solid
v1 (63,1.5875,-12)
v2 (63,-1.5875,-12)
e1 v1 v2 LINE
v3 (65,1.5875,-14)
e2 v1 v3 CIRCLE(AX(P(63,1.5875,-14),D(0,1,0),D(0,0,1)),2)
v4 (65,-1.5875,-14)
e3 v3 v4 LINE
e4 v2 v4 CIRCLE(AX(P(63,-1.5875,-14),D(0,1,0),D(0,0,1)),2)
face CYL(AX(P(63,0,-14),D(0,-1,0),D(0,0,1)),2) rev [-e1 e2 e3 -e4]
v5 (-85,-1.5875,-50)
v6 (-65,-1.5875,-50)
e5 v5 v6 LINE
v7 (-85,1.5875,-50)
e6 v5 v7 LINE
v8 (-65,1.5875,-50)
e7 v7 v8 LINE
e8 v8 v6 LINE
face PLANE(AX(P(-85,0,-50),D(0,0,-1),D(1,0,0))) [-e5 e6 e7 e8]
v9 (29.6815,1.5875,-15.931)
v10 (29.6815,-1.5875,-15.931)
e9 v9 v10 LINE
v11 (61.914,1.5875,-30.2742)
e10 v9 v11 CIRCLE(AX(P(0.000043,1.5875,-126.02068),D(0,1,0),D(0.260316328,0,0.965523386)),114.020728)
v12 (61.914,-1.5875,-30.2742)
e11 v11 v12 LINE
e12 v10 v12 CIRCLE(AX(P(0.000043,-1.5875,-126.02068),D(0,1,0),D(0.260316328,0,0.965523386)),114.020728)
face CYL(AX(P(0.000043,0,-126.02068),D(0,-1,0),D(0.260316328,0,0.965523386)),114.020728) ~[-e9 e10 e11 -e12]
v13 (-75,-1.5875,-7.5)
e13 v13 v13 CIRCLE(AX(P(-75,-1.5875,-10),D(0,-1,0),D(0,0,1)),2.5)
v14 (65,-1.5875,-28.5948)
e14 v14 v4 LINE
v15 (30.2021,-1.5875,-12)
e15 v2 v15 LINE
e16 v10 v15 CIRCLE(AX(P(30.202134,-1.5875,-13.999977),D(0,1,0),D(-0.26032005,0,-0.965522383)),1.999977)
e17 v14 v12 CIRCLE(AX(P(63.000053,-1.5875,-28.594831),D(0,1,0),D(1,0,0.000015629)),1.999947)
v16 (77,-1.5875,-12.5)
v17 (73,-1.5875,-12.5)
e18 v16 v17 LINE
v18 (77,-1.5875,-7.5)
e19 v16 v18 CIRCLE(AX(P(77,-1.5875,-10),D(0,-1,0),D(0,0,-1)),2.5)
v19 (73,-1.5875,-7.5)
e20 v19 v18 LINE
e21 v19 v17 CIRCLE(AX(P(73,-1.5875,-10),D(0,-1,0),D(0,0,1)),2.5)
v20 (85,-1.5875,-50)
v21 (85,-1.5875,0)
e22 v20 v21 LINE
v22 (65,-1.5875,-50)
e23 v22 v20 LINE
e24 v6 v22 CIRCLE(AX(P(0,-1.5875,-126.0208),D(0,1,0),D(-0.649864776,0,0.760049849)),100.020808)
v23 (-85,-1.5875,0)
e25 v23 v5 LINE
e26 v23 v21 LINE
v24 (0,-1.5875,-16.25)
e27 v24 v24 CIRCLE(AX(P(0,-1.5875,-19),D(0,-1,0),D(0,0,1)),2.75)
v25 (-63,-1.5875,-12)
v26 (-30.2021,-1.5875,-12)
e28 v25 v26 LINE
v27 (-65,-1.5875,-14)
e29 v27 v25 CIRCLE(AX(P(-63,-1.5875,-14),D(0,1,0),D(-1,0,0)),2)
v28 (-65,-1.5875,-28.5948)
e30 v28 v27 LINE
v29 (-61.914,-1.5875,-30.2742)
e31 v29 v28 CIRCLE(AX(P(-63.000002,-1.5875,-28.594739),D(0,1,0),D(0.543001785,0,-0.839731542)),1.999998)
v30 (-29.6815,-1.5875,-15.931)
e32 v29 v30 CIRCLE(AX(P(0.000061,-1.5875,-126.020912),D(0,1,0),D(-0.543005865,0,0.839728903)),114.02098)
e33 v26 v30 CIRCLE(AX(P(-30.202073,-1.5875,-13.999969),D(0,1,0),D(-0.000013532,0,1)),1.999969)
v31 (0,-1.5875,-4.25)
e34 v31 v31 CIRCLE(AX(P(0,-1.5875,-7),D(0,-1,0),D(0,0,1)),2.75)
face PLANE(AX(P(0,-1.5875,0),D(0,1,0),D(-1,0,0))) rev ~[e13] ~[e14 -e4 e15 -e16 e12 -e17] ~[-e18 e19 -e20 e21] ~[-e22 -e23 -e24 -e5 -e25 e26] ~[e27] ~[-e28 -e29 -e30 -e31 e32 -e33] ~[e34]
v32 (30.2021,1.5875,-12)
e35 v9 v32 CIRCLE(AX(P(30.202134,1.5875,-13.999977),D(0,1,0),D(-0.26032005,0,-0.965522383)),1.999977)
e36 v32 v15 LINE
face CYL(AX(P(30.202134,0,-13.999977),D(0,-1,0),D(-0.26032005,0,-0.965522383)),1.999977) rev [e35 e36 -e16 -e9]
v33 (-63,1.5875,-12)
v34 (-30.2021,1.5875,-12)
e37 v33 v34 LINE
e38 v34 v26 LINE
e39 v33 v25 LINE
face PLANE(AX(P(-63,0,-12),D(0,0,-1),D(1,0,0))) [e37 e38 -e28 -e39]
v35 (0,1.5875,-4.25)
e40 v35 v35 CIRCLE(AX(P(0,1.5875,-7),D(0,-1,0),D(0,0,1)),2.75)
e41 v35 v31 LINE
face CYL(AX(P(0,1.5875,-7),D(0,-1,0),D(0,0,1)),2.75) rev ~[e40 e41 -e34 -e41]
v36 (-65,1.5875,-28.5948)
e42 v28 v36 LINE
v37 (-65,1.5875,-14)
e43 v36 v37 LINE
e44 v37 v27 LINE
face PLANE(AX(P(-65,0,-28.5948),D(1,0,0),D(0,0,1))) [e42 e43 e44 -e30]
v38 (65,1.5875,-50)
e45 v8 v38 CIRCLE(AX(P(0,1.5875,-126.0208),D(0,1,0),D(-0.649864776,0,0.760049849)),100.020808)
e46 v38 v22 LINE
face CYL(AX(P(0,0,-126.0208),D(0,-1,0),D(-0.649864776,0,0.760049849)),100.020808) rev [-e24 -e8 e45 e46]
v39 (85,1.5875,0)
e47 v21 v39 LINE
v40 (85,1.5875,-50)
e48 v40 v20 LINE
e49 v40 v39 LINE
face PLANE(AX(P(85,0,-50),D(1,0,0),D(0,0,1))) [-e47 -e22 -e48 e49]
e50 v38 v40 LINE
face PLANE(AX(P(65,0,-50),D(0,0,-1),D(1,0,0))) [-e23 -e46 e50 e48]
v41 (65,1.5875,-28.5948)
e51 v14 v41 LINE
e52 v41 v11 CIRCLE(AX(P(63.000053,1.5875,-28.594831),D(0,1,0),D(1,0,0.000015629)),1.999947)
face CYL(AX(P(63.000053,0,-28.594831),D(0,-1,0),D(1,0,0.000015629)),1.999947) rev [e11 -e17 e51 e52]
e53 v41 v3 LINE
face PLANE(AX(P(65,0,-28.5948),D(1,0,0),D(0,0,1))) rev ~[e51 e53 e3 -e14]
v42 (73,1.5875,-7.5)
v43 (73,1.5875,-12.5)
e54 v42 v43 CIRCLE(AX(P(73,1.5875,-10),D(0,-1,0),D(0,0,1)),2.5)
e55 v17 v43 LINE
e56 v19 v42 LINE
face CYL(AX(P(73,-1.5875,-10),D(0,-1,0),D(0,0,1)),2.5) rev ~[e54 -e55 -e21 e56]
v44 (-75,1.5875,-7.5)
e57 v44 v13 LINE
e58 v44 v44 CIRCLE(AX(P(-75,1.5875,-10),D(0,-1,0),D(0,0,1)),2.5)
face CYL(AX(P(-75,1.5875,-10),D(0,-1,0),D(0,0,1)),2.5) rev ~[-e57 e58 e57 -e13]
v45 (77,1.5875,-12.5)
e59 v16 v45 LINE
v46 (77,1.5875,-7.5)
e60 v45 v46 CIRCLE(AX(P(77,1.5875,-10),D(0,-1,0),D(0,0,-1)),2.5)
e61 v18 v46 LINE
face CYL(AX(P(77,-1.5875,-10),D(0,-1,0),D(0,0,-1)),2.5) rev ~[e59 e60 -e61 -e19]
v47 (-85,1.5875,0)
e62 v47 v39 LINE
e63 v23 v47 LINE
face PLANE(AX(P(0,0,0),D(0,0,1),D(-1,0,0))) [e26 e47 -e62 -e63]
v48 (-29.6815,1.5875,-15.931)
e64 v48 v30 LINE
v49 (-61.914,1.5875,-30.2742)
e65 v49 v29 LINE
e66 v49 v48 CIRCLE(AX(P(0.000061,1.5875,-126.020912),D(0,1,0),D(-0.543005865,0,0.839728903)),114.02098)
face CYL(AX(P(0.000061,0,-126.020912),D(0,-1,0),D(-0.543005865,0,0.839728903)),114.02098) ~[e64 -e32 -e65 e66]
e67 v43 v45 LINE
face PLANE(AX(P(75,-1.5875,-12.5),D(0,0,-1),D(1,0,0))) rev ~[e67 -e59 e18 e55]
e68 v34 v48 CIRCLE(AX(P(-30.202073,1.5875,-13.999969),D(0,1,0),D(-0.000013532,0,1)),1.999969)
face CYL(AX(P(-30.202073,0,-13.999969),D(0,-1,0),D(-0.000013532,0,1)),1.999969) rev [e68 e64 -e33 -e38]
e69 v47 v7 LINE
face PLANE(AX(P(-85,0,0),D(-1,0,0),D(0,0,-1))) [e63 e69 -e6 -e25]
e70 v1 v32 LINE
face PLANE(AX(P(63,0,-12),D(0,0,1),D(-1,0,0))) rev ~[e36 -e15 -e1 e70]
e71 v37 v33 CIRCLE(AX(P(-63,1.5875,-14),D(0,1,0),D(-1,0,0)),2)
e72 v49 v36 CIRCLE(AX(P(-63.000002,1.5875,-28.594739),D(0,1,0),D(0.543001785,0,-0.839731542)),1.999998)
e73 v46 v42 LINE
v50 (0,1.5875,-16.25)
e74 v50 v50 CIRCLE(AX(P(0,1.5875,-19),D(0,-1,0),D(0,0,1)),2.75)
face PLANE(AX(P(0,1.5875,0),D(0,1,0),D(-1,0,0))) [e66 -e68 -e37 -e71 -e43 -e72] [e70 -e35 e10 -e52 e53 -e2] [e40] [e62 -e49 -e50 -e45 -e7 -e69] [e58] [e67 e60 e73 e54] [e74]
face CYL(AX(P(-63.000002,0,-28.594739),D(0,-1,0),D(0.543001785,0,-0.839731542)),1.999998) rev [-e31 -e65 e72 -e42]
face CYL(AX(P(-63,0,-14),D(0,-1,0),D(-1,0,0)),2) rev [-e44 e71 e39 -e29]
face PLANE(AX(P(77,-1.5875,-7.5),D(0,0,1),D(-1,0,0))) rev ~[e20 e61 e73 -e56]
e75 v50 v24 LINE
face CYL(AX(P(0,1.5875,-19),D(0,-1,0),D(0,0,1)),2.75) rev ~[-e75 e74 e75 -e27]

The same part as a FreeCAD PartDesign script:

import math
import FreeCAD as App
import Part
import Sketcher
from FreeCAD import Vector

doc = App.newDocument("Part")
body = doc.addObject("PartDesign::Body", "Body")

# Sketch on XZ plane
sketch1 = body.newObject("Sketcher::SketchObject", "Sketch")
sketch1.AttachmentSupport = (doc.getObject("XZ_Plane"), [""])
sketch1.MapMode = "FlatFace"
sketch1.addGeometry([
    Part.LineSegment(Vector(-65, -50, 0), Vector(-85, -50, 0)),  # 0
    Part.LineSegment(Vector(-85, -50, 0), Vector(-85, 0, 0)),  # 1
    Part.LineSegment(Vector(-85, 0, 0), Vector(85, 0, 0)),  # 2
    Part.LineSegment(Vector(85, 0, 0), Vector(85, -50, 0)),  # 3
    Part.LineSegment(Vector(85, -50, 0), Vector(65, -50, 0)),  # 4
    Part.ArcOfCircle(Part.Circle(Vector(0, -126.0208, 0), Vector(0, 0, 1), 100.020808), math.radians(49.468593), math.radians(130.531407)),  # 5
    Part.ArcOfCircle(Part.Circle(Vector(63, -28.5948, 0), Vector(0, 0, 1), 2), math.radians(-122.889114), math.radians(0)),  # 6
    Part.LineSegment(Vector(65, -28.5948, 0), Vector(65, -14, 0)),  # 7
    Part.ArcOfCircle(Part.Circle(Vector(63, -14, 0), Vector(0, 0, 1), 2), math.radians(0), math.radians(90)),  # 8
    Part.LineSegment(Vector(63, -12, 0), Vector(30.2021, -12, 0)),  # 9
    Part.ArcOfCircle(Part.Circle(Vector(30.2021, -14, 0), Vector(0, 0, 1), 1.999946), math.radians(90), math.radians(254.911722)),  # 10
    Part.ArcOfCircle(Part.Circle(Vector(0, -126.0208, 0), Vector(0, 0, 1), 114.020853), math.radians(57.111499), math.radians(74.911162)),  # 11
    Part.LineSegment(Vector(-65, -14, 0), Vector(-65, -28.5948, 0)),  # 12
    Part.ArcOfCircle(Part.Circle(Vector(-63, -28.5948, 0), Vector(0, 0, 1), 1.999945), math.radians(180), math.radians(302.889114)),  # 13
    Part.ArcOfCircle(Part.Circle(Vector(0, -126.0208, 0), Vector(0, 0, 1), 114.020856), math.radians(105.088838), math.radians(122.888501)),  # 14
    Part.ArcOfCircle(Part.Circle(Vector(-30.2021, -14, 0), Vector(0, 0, 1), 2), math.radians(-74.911722), math.radians(90)),  # 15
    Part.LineSegment(Vector(-30.2021, -12, 0), Vector(-63, -12, 0)),  # 16
    Part.ArcOfCircle(Part.Circle(Vector(-63, -14, 0), Vector(0, 0, 1), 2), math.radians(90), math.radians(180)),  # 17
], False)
sketch1.addConstraint([
    Sketcher.Constraint("Coincident", 0, 2, 1, 1),
    Sketcher.Constraint("Coincident", 1, 2, 2, 1),
    Sketcher.Constraint("Coincident", 2, 2, 3, 1),
    Sketcher.Constraint("Coincident", 3, 2, 4, 1),
    Sketcher.Constraint("Coincident", 4, 2, 5, 1),
    Sketcher.Constraint("Coincident", 5, 2, 0, 1),
    Sketcher.Constraint("Tangent", 6, 2, 7, 1),
    Sketcher.Constraint("Tangent", 7, 2, 8, 1),
    Sketcher.Constraint("Tangent", 8, 2, 9, 1),
    Sketcher.Constraint("Tangent", 9, 2, 10, 1),
    Sketcher.Constraint("Tangent", 10, 2, 11, 2),
    Sketcher.Constraint("Tangent", 11, 1, 6, 1),
    Sketcher.Constraint("Tangent", 12, 2, 13, 1),
    Sketcher.Constraint("Tangent", 13, 2, 14, 2),
    Sketcher.Constraint("Tangent", 14, 1, 15, 1),
    Sketcher.Constraint("Tangent", 15, 2, 16, 1),
    Sketcher.Constraint("Tangent", 16, 2, 17, 1),
    Sketcher.Constraint("Tangent", 17, 2, 12, 1),
    Sketcher.Constraint("Horizontal", 0),
    Sketcher.Constraint("Vertical", 1),
    Sketcher.Constraint("Horizontal", 2),
    Sketcher.Constraint("Vertical", 3),
    Sketcher.Constraint("Horizontal", 4),
    Sketcher.Constraint("Vertical", 7),
    Sketcher.Constraint("Horizontal", 9),
    Sketcher.Constraint("Vertical", 12),
    Sketcher.Constraint("Horizontal", 16),
    Sketcher.Constraint("Coincident", 11, 3, 5, 3),
    Sketcher.Constraint("Coincident", 14, 3, 5, 3),
    Sketcher.Constraint("Equal", 6, 8),
    Sketcher.Constraint("Equal", 8, 10),
    Sketcher.Constraint("Equal", 10, 13),
    Sketcher.Constraint("Equal", 11, 14),
    Sketcher.Constraint("Equal", 13, 15),
    Sketcher.Constraint("Equal", 15, 17),
    Sketcher.Constraint("Symmetric", 1, 2, 2, 2, -1, 1),
    Sketcher.Constraint("Symmetric", 6, 3, 13, 3, -2),
    Sketcher.Constraint("Horizontal", 10, 3, 15, 3),
    Sketcher.Constraint("Horizontal", 0, 2, 3, 2),
    Sketcher.Constraint("Vertical", 4, 2, 6, 2),
    Sketcher.Constraint("Radius", 6, 2.0),
    Sketcher.Constraint("DistanceX", 0, 2, 0, 1, 20.0),
    Sketcher.Constraint("DistanceX", 2, 1, 2, 2, 170.0),
    Sketcher.Constraint("DistanceY", 1, 1, 1, 2, 50.0),
    Sketcher.Constraint("DistanceY", 8, 2, -1, 1, 12.0),
    Sketcher.Constraint("Radius", 5, 100.0208),
    Sketcher.Constraint("Radius", 11, 114.0209),
])
pad1 = body.newObject("PartDesign::Pad", "Pad")
pad1.Profile = sketch1
pad1.Length = 3.175
pad1.Midplane = True

# Sketch on XZ plane
sketch2 = body.newObject("Sketcher::SketchObject", "Sketch001")
sketch2.AttachmentSupport = (doc.getObject("XZ_Plane"), [""])
sketch2.MapMode = "FlatFace"
sketch2.AttachmentOffset = App.Placement(Vector(0, 0, -1.5875), App.Rotation())
sketch2.addGeometry([
    Part.Circle(Vector(-75, -10, 0), Vector(0, 0, 1), 2.5),
    Part.Circle(Vector(75, -10, 0), Vector(0, 0, 1), 2.5),
], False)
sketch2.addConstraint([
    Sketcher.Constraint("Equal", 0, 1),
    Sketcher.Constraint("Symmetric", 0, 3, 1, 3, -2),
    Sketcher.Constraint("Diameter", 0, 5.0),
    Sketcher.Constraint("DistanceX", 0, 3, -1, 1, 75.0),
    Sketcher.Constraint("DistanceY", 0, 3, -1, 1, 10.0),
])
doc.recompute()
hole = body.newObject("PartDesign::Hole", "Hole")
hole.Profile = sketch2
hole.ThreadType = "None"
hole.Diameter = 5
hole.DepthType = "ThroughAll"
hole.Reversed = True

# Sketch on XZ plane
sketch3 = body.newObject("Sketcher::SketchObject", "Sketch002")
sketch3.AttachmentSupport = (doc.getObject("XZ_Plane"), [""])
sketch3.MapMode = "FlatFace"
sketch3.AttachmentOffset = App.Placement(Vector(0, 0, -1.5875), App.Rotation())
sketch3.addGeometry([
    Part.Circle(Vector(0, -7, 0), Vector(0, 0, 1), 2.75),
    Part.Circle(Vector(0, -19, 0), Vector(0, 0, 1), 2.75),
], False)
sketch3.addConstraint([
    Sketcher.Constraint("Equal", 0, 1),
    Sketcher.Constraint("PointOnObject", 0, 3, -2),
    Sketcher.Constraint("PointOnObject", 1, 3, -2),
    Sketcher.Constraint("Diameter", 0, 5.5),
    Sketcher.Constraint("DistanceY", 0, 3, -1, 1, 7.0),
    Sketcher.Constraint("DistanceY", 1, 3, -1, 1, 19.0),
])
doc.recompute()
hole2 = body.newObject("PartDesign::Hole", "Hole001")
hole2.Profile = sketch3
hole2.ThreadType = "None"
hole2.Diameter = 5.5
hole2.DepthType = "ThroughAll"
hole2.Reversed = True

# Sketch on XZ plane
sketch4 = body.newObject("Sketcher::SketchObject", "Sketch003")
sketch4.AttachmentSupport = (doc.getObject("XZ_Plane"), [""])
sketch4.MapMode = "FlatFace"
sketch4.AttachmentOffset = App.Placement(Vector(0, 0, 1.5875), App.Rotation())
sketch4.addGeometry([
    Part.ArcOfCircle(Part.Circle(Vector(77, -10, 0), Vector(0, 0, 1), 2.5), math.radians(-90), math.radians(90)),
    Part.LineSegment(Vector(77, -7.5, 0), Vector(73, -7.5, 0)),
    Part.ArcOfCircle(Part.Circle(Vector(73, -10, 0), Vector(0, 0, 1), 2.5), math.radians(90), math.radians(270)),
    Part.LineSegment(Vector(73, -12.5, 0), Vector(77, -12.5, 0)),
], False)
sketch4.addConstraint([
    Sketcher.Constraint("Tangent", 0, 2, 1, 1),
    Sketcher.Constraint("Tangent", 1, 2, 2, 1),
    Sketcher.Constraint("Tangent", 2, 2, 3, 1),
    Sketcher.Constraint("Tangent", 3, 2, 0, 1),
    Sketcher.Constraint("Horizontal", 1),
    Sketcher.Constraint("Horizontal", 3),
    Sketcher.Constraint("DistanceX", 1, 2, 1, 1, 4.0),
    Sketcher.Constraint("Radius", 0, 2.5),
    Sketcher.Constraint("DistanceX", -1, 1, 0, 3, 77.0),
    Sketcher.Constraint("DistanceY", 0, 3, -1, 1, 10.0),
])
pocket1 = body.newObject("PartDesign::Pocket", "Pocket")
pocket1.Profile = sketch4
pocket1.Length = 25.4

doc.recompute()
